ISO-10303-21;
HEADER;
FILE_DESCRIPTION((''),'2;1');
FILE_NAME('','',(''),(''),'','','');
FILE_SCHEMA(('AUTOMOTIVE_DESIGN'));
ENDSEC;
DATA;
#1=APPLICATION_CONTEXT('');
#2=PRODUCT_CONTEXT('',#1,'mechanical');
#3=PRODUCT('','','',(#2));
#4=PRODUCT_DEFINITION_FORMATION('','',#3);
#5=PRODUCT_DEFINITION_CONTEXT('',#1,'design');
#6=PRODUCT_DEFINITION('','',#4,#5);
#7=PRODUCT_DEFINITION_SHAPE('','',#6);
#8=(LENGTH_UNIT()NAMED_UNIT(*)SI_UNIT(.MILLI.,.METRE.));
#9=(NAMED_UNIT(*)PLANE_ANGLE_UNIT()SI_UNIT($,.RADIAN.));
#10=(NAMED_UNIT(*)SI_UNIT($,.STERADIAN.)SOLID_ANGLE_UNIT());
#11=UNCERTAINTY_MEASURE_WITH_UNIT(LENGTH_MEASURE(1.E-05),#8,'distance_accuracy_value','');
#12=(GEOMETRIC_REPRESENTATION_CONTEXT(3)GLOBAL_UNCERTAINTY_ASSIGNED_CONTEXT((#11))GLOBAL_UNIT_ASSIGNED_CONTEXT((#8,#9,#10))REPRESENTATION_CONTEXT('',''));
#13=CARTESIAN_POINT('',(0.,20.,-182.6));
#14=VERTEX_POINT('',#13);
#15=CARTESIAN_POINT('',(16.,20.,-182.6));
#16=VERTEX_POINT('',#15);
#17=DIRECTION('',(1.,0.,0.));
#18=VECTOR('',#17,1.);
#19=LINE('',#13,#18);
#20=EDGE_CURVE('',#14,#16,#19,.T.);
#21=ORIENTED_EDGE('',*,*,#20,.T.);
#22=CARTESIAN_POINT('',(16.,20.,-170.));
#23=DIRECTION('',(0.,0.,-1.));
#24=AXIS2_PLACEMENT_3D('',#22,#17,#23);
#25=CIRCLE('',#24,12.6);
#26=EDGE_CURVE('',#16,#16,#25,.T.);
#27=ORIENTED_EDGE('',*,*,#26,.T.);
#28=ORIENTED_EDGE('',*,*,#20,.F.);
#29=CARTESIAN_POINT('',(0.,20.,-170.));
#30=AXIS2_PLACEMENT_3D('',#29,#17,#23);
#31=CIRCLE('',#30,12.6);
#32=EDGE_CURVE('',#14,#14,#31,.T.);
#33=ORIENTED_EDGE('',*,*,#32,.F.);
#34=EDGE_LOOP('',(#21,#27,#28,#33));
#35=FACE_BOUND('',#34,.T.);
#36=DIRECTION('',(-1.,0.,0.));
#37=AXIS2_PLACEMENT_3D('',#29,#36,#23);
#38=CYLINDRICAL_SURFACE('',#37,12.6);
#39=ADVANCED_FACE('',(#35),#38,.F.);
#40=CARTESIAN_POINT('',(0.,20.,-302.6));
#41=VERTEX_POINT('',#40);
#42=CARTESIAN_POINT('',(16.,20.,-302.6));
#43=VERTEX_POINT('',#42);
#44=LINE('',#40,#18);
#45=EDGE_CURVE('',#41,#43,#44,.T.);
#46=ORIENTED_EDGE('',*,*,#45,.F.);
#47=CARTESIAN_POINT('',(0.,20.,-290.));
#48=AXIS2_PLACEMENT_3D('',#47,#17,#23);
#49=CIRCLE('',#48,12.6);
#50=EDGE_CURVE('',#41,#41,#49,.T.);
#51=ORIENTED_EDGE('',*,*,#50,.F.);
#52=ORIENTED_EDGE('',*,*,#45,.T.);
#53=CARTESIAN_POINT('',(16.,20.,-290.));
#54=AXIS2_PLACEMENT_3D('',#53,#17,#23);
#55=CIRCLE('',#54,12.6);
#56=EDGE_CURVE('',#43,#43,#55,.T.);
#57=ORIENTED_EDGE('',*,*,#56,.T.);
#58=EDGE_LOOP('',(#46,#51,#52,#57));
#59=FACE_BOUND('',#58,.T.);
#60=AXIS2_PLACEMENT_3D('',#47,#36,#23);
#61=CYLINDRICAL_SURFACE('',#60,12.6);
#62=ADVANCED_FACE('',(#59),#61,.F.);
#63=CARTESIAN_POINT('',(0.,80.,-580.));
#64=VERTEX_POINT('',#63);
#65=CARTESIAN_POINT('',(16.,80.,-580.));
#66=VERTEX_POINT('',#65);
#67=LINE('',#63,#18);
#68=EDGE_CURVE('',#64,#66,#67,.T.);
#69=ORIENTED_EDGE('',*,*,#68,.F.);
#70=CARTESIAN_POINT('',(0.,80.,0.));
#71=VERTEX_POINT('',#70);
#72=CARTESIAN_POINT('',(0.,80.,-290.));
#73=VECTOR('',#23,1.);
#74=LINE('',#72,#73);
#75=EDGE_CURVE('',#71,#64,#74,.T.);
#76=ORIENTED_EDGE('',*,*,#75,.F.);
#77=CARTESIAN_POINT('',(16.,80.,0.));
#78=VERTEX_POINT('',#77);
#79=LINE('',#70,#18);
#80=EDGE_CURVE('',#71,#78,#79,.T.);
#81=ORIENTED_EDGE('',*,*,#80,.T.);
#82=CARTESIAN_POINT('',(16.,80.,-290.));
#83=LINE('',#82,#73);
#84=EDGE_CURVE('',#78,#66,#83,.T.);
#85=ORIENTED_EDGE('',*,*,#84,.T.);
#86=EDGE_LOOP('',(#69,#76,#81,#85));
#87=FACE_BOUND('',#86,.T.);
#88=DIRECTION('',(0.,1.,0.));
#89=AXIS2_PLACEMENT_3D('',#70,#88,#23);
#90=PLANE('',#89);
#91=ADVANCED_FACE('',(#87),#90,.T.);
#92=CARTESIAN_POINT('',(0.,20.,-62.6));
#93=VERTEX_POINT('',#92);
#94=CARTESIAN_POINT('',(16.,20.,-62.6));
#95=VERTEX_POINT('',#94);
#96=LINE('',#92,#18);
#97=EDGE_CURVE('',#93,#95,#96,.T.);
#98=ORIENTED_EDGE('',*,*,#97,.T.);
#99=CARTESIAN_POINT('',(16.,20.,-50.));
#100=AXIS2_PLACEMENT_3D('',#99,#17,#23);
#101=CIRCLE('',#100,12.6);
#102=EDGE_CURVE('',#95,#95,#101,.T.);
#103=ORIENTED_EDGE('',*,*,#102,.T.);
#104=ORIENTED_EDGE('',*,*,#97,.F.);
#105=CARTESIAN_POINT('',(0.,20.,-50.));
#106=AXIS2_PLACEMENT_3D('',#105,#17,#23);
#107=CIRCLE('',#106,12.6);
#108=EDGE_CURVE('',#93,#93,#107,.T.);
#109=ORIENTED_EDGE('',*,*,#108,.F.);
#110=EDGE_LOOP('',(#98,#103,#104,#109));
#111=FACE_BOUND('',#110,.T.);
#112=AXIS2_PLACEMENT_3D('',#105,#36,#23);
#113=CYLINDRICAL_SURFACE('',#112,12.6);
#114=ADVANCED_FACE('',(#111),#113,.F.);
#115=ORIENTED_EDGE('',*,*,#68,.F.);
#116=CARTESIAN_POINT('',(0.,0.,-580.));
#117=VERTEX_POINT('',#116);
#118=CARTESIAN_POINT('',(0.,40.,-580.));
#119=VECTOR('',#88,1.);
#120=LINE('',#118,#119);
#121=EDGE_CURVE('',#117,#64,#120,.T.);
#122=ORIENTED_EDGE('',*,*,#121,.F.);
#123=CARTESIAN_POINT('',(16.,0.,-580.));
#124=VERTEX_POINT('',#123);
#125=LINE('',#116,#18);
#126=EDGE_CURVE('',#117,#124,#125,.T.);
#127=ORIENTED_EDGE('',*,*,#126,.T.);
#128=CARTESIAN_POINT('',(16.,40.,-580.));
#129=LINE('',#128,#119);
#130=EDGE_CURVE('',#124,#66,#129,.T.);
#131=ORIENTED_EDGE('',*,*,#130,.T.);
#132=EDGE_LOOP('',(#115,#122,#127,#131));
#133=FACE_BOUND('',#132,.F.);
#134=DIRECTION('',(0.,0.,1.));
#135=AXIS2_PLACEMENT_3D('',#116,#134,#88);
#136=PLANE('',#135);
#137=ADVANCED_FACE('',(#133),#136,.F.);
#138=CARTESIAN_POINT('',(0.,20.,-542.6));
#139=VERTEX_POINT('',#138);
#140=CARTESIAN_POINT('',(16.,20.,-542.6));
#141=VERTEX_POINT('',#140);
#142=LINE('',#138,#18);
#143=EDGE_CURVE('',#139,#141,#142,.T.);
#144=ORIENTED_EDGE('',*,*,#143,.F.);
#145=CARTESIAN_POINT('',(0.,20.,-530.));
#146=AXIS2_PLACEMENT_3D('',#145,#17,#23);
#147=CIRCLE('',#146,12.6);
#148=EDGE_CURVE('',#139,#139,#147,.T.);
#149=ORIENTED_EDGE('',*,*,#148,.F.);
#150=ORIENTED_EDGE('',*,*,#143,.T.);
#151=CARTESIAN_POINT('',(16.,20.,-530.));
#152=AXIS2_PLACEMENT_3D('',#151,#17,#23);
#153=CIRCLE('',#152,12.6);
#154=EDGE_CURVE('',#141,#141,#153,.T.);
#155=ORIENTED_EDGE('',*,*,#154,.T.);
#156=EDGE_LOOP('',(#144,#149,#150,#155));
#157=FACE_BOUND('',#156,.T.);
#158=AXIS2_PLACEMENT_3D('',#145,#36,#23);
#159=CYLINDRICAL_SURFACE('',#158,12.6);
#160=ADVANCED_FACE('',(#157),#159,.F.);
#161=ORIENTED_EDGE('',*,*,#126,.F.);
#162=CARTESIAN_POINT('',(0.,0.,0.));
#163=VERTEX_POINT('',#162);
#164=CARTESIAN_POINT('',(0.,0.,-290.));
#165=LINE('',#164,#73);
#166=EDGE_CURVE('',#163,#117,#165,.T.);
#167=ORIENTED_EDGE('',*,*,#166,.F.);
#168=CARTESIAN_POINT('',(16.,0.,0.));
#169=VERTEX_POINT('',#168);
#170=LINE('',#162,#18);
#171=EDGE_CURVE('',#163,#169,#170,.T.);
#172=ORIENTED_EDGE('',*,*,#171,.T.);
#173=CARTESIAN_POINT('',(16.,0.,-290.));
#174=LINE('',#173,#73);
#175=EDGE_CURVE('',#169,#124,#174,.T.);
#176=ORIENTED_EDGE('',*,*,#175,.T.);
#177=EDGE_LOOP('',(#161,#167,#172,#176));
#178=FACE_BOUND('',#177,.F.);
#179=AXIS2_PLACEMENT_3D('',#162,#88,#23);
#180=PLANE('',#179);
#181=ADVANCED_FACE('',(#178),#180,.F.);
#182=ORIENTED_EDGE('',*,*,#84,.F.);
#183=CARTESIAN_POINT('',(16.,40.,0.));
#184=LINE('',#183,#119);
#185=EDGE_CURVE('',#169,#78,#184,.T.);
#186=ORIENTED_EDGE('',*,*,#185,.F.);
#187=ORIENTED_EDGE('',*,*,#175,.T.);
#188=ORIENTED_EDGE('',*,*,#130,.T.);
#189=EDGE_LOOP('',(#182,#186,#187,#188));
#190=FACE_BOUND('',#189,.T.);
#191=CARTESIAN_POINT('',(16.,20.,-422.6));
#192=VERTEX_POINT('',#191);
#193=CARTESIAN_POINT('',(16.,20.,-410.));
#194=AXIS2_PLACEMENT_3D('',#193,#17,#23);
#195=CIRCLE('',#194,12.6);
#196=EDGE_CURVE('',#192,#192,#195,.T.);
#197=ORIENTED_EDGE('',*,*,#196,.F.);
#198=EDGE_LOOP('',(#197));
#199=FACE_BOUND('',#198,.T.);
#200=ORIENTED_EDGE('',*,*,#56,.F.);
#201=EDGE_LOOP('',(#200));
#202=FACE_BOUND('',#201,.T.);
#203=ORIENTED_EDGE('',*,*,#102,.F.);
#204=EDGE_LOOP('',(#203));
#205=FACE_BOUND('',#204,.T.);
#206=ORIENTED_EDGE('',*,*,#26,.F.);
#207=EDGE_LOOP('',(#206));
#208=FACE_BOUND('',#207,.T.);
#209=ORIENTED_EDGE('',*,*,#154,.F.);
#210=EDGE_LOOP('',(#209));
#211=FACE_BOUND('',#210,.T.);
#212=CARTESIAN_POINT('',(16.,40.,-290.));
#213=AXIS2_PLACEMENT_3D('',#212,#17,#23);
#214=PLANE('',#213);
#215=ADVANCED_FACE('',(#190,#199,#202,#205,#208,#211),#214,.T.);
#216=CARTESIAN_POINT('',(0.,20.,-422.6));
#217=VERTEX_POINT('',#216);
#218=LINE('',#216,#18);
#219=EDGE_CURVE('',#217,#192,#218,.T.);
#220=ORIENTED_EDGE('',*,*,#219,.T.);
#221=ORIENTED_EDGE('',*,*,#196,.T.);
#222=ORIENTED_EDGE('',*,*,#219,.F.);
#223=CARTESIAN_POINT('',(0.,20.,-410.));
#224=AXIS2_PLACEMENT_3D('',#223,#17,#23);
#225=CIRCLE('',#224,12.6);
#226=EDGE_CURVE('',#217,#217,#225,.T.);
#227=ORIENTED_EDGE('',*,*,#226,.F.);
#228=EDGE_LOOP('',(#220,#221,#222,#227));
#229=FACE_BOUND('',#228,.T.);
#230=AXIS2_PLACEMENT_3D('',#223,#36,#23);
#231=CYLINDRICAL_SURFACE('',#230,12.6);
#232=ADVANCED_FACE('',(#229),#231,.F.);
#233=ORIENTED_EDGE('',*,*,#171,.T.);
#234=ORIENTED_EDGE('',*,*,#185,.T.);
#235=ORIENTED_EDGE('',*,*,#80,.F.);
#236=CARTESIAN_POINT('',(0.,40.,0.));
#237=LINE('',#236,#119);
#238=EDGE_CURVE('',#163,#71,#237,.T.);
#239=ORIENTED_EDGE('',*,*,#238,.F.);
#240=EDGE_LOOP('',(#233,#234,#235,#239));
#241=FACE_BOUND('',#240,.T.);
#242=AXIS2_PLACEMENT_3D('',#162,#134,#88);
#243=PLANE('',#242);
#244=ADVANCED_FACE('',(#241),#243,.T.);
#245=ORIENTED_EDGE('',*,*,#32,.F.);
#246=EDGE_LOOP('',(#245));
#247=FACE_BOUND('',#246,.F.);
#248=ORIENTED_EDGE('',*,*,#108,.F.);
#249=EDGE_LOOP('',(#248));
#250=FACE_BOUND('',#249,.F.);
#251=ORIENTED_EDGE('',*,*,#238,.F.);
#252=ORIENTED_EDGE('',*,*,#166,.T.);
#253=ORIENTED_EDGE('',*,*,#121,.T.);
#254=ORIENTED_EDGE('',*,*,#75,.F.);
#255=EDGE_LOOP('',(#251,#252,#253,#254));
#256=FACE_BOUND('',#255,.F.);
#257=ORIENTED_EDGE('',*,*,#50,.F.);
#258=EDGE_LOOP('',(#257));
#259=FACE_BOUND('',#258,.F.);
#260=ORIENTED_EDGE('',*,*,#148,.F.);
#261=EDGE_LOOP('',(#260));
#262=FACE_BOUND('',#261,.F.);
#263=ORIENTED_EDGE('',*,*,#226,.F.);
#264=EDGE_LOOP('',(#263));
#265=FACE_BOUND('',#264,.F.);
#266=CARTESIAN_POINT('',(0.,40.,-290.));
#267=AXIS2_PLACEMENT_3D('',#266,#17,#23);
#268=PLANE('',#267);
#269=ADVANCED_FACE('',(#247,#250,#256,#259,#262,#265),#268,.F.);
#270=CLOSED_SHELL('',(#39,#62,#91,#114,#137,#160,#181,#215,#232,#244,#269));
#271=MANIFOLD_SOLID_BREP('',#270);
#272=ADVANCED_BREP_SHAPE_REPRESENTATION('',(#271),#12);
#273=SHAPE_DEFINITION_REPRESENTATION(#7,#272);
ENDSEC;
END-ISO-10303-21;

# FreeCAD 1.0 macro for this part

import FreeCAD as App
import Part
import Sketcher
from FreeCAD import Vector


def add_polygon(sketch, points):
    """Adds a closed chain of lines whose ends are joined by coincident constraints."""
    first, n = sketch.GeometryCount, len(points)
    for a, b in zip(points, points[1:] + points[:1]):
        sketch.addGeometry(Part.LineSegment(App.Vector(*a, 0), App.Vector(*b, 0)), False)
    for i in range(n):
        sketch.addConstraint(Sketcher.Constraint("Coincident", first + i, 2, first + (i + 1) % n, 1))

doc = App.newDocument("Part")
body = doc.addObject("PartDesign::Body", "Body")

# Sketch on YZ plane
sketch1 = body.newObject("Sketcher::SketchObject", "Sketch")
sketch1.AttachmentSupport = (doc.getObject("YZ_Plane"), [""])
sketch1.MapMode = "FlatFace"
add_polygon(sketch1, [(80, 0), (0, 0), (0, -580), (80, -580)])  # lines 0-3
sketch1.addGeometry(Part.Circle(Vector(20, -50, 0), Vector(0, 0, 1), 12.6), False)  # 4
sketch1.addGeometry(Part.Circle(Vector(20, -170, 0), Vector(0, 0, 1), 12.6), False)  # 5
sketch1.addGeometry(Part.Circle(Vector(20, -290, 0), Vector(0, 0, 1), 12.6), False)  # 6
sketch1.addGeometry(Part.Circle(Vector(20, -410, 0), Vector(0, 0, 1), 12.6), False)  # 7
sketch1.addGeometry(Part.Circle(Vector(20, -530, 0), Vector(0, 0, 1), 12.6), False)  # 8
sketch1.addConstraint([
    Sketcher.Constraint("Horizontal", 0),
    Sketcher.Constraint("Vertical", 1),
    Sketcher.Constraint("Horizontal", 2),
    Sketcher.Constraint("Vertical", 3),
    Sketcher.Constraint("Coincident", 0, 2, -1, 1),
    Sketcher.Constraint("Equal", 4, 5),
    Sketcher.Constraint("Equal", 5, 6),
    Sketcher.Constraint("Equal", 6, 7),
    Sketcher.Constraint("Equal", 7, 8),
    Sketcher.Constraint("Vertical", 4, 3, 5, 3),
    Sketcher.Constraint("Vertical", 5, 3, 6, 3),
    Sketcher.Constraint("Vertical", 6, 3, 7, 3),
    Sketcher.Constraint("Vertical", 7, 3, 8, 3),
    Sketcher.Constraint("Diameter", 4, 25.2),
    Sketcher.Constraint("DistanceX", 0, 2, 0, 1, 80.0),
    Sketcher.Constraint("DistanceY", 1, 2, 1, 1, 580.0),
    Sketcher.Constraint("DistanceX", -1, 1, 4, 3, 20.0),
    Sketcher.Constraint("DistanceY", 4, 3, -1, 1, 50.0),
    Sketcher.Constraint("DistanceY", 5, 3, -1, 1, 170.0),
    Sketcher.Constraint("DistanceY", 6, 3, -1, 1, 290.0),
    Sketcher.Constraint("DistanceY", 7, 3, -1, 1, 410.0),
    Sketcher.Constraint("DistanceY", 8, 3, -1, 1, 530.0),
])
pad1 = body.newObject("PartDesign::Pad", "Pad")
pad1.Profile = sketch1
pad1.Length = 16

doc.recompute()
